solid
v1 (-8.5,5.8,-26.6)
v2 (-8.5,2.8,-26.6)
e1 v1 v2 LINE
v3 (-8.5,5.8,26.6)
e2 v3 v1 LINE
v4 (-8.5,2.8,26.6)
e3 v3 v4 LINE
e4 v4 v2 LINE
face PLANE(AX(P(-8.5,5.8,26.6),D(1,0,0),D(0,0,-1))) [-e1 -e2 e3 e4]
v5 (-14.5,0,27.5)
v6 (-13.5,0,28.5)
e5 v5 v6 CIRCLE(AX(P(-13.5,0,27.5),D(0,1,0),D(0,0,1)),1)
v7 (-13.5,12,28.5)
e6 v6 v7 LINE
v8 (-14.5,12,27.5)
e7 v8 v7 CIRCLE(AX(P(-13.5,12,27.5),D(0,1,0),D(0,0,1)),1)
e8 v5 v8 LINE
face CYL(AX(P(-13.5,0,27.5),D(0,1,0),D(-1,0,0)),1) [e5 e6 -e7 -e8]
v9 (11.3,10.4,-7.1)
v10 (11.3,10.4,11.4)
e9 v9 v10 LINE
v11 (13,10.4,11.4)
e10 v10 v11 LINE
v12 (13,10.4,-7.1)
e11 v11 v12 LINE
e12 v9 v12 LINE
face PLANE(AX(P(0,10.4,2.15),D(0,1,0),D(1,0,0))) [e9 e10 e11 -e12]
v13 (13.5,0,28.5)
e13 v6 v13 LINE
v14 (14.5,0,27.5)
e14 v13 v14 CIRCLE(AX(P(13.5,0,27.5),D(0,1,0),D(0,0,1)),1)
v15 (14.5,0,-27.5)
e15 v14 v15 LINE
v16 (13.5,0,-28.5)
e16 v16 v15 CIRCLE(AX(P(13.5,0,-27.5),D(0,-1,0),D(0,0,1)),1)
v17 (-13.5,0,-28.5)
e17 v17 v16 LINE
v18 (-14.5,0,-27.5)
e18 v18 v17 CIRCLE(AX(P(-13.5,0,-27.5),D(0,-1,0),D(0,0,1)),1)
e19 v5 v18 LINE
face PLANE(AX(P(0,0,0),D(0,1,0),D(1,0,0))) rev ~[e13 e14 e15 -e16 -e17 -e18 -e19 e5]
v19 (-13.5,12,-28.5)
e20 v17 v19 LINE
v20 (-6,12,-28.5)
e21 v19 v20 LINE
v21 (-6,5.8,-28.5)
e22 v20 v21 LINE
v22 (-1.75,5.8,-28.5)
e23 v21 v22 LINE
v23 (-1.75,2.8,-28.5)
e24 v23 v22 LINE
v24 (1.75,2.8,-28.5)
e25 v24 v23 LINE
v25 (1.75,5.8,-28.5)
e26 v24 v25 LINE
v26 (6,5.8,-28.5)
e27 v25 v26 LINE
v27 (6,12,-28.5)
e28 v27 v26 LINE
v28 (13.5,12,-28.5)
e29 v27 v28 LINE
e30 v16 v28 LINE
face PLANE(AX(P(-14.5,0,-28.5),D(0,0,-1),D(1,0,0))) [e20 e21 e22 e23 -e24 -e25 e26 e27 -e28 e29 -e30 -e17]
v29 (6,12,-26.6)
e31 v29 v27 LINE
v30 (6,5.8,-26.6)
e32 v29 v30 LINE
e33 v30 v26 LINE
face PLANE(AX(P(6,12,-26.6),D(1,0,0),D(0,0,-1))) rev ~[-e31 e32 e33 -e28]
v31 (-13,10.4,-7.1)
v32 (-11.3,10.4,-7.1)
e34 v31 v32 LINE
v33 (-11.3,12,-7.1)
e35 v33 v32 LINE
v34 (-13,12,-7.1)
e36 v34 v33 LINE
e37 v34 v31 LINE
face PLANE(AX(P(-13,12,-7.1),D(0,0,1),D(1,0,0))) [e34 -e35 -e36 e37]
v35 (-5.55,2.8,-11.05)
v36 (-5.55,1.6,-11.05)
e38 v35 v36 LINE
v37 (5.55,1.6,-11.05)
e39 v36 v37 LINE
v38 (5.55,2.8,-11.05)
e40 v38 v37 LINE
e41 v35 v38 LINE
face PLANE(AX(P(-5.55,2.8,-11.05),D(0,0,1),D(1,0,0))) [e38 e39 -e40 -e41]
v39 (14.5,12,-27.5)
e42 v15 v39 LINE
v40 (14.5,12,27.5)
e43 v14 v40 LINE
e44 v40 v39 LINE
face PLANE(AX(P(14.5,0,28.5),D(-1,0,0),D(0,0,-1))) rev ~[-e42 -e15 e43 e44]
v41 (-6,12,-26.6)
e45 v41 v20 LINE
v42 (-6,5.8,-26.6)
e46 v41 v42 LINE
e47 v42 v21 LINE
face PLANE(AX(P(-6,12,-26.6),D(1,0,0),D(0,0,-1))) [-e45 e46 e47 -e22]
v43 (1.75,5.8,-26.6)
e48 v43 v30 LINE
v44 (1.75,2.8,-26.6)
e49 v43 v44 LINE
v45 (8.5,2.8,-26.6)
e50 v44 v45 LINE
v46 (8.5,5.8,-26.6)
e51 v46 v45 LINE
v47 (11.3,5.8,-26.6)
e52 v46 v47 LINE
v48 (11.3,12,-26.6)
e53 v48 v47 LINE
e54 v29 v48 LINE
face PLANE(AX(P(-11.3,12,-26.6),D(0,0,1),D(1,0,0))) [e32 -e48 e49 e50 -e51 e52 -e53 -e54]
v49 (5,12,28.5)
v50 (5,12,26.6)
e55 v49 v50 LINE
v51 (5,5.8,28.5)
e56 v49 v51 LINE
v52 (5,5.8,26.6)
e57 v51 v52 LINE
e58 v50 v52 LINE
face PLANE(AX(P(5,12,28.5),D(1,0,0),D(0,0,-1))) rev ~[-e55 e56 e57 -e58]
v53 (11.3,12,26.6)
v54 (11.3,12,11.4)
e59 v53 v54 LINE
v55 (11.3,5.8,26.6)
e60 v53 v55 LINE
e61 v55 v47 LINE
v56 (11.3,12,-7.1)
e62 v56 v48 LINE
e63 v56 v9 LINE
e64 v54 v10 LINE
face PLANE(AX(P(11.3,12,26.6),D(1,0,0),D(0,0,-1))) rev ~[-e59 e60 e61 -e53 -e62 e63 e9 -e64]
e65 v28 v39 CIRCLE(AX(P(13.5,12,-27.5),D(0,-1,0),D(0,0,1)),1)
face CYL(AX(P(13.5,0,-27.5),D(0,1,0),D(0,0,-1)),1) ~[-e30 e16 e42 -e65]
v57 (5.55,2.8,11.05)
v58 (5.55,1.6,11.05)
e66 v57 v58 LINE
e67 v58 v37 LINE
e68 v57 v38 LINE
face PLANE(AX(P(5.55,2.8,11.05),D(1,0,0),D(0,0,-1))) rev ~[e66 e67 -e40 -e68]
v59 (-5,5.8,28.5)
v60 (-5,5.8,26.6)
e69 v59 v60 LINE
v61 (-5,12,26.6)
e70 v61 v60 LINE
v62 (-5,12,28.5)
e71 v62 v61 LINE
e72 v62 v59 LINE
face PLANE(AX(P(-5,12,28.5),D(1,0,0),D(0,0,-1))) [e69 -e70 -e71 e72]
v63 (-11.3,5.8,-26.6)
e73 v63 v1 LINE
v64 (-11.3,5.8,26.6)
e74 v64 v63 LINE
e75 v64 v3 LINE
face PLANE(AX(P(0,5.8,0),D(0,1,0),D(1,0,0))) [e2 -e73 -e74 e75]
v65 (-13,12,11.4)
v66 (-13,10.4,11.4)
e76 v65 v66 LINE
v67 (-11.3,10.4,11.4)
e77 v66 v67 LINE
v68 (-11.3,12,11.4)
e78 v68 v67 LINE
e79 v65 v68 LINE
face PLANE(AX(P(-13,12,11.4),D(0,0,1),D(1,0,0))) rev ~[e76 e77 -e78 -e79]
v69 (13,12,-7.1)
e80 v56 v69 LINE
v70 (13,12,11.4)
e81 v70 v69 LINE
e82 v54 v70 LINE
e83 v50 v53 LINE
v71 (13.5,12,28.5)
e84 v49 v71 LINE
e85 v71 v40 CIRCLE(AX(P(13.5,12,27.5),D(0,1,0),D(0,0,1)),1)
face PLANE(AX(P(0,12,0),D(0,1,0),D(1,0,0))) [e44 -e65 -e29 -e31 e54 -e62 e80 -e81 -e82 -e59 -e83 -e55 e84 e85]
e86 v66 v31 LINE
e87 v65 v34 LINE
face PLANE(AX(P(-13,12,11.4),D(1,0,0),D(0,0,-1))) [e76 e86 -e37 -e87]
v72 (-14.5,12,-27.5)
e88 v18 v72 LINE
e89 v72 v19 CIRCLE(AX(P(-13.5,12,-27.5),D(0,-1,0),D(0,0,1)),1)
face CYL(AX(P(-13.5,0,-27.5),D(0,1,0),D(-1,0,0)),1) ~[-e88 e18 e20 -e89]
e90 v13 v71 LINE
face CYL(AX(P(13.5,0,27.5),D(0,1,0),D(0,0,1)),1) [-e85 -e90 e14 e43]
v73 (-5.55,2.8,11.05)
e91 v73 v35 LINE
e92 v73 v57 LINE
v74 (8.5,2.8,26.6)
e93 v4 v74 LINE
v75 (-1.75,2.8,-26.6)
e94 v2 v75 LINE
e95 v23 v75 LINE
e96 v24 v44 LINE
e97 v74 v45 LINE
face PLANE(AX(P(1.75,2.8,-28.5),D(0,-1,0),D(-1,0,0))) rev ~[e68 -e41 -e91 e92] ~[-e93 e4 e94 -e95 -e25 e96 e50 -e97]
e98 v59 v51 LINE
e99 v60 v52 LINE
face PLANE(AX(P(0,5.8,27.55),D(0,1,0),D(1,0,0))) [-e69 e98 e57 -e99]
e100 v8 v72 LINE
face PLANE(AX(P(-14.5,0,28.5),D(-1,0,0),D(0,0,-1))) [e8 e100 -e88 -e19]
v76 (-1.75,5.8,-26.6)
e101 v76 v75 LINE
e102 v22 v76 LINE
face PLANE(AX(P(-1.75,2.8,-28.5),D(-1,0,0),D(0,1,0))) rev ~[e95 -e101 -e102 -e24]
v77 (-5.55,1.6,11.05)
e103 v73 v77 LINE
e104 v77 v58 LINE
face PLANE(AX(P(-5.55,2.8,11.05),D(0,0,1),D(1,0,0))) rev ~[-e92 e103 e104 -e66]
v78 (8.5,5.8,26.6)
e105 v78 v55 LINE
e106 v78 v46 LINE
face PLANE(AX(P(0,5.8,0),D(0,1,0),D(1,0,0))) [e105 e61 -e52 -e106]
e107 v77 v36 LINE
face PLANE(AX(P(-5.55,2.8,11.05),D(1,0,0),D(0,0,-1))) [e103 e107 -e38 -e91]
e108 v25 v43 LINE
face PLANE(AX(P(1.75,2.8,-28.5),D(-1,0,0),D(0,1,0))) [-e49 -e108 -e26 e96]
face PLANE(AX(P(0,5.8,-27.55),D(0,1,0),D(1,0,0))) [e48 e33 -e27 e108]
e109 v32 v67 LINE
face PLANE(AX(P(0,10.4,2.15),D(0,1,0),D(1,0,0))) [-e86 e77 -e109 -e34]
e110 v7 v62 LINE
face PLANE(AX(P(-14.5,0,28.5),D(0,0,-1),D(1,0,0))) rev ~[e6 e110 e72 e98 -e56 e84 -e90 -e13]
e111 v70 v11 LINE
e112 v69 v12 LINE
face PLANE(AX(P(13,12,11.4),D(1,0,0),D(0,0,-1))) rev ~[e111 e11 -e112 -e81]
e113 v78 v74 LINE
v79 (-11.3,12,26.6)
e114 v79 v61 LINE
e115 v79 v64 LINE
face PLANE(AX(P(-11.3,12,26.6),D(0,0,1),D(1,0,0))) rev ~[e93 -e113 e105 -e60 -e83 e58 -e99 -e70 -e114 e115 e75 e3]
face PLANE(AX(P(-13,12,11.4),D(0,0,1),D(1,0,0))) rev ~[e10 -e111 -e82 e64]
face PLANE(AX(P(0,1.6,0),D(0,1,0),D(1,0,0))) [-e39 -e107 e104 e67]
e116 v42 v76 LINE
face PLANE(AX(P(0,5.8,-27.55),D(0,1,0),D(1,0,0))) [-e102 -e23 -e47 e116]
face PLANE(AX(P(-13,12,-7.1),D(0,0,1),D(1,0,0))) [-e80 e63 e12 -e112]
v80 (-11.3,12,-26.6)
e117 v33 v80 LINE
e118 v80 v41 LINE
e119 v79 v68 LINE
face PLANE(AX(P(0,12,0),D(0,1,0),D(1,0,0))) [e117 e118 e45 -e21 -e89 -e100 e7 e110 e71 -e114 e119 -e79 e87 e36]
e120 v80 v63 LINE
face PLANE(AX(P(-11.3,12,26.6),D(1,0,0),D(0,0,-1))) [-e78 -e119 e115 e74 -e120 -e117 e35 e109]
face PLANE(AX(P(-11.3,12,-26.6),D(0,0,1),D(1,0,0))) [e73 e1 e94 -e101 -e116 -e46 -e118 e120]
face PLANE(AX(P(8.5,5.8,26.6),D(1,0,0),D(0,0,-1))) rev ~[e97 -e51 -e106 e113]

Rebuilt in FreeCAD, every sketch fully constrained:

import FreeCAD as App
import Part
import Sketcher
from FreeCAD import Vector
Q = App.Units.Quantity


def edges_at(feature, points):
    """Names of the edges that pass closest to the given points."""
    edges = feature.Shape.Edges
    near = lambda p: min(range(len(edges)), key=lambda i: edges[i].distToShape(Part.Vertex(*p))[0])
    return sorted({f"Edge{near(p) + 1}" for p in points})

doc = App.newDocument("Part")
params = doc.addObject("Spreadsheet::Sheet", "Params")
for row, (alias, value) in enumerate([
    ("sketch1_width", "29 mm"),
    ("sketch1_height", "57 mm"),
    ("pad1_length", "12 mm"),
    ("sketch2_width", "22.6 mm"),
    ("sketch2_height", "53.2 mm"),
    ("pocket1_length", "6.2 mm"),
    ("sketch3_width", "17 mm"),
    ("sketch3_height", "53.2 mm"),
    ("pocket2_length", "3 mm"),
    ("sketch4_width", "11.1 mm"),
    ("sketch4_height", "22.1 mm"),
    ("pocket3_length", "1.2 mm"),
    ("sketch5_width", "26 mm"),
    ("sketch5_height", "18.5 mm"),
    ("pocket4_length", "1.6 mm"),
    ("sketch6_width", "12 mm"),
    ("sketch6_width2", "10 mm"),
    ("sketch6_height", "1.9 mm"),
    ("pocket5_length", "6.2 mm"),
    ("fillet_radius", "1 mm"),
    ("sketch7_height", "3 mm"),
    ("sketch7_width", "3.5 mm"),
    ("pocket6_length", "10 mm"),
], start=1):
    params.set(f"A{row}", alias)
    params.set(f"B{row}", "=" + value)
    params.setAlias(f"B{row}", alias)

body = doc.addObject("PartDesign::Body", "Body")

# Sketch on XZ plane
sketch1 = body.newObject("Sketcher::SketchObject", "Sketch")
sketch1.AttachmentSupport = (doc.getObject("XZ_Plane"), [""])
sketch1.MapMode = "FlatFace"
sketch1.addGeometry([
    Part.LineSegment(Vector(-14.5, -28.5, 0), Vector(-14.5, 28.5, 0)),
    Part.LineSegment(Vector(-14.5, 28.5, 0), Vector(14.5, 28.5, 0)),
    Part.LineSegment(Vector(14.5, 28.5, 0), Vector(14.5, -28.5, 0)),
    Part.LineSegment(Vector(14.5, -28.5, 0), Vector(-14.5, -28.5, 0)),
], False)
sketch1.addConstraint([
    Sketcher.Constraint("Coincident", 0, 2, 1, 1),
    Sketcher.Constraint("Coincident", 1, 2, 2, 1),
    Sketcher.Constraint("Coincident", 2, 2, 3, 1),
    Sketcher.Constraint("Coincident", 3, 2, 0, 1),
    Sketcher.Constraint("Vertical", 0),
    Sketcher.Constraint("Horizontal", 1),
    Sketcher.Constraint("Vertical", 2),
    Sketcher.Constraint("Horizontal", 3),
    Sketcher.Constraint("Symmetric", 0, 2, 2, 2, -1, 1),
    Sketcher.Constraint("DistanceX", 1, 1, 1, 2, Q("29 mm")),
    Sketcher.Constraint("DistanceY", 0, 1, 0, 2, Q("57 mm")),
])
sketch1.setExpression("Constraints[9]", "Params.sketch1_width")
sketch1.setExpression("Constraints[10]", "Params.sketch1_height")
pad1 = body.newObject("PartDesign::Pad", "Pad")
pad1.Profile = sketch1
pad1.setExpression("Length", "Params.pad1_length")
pad1.Reversed = True

# Sketch on XZ plane
sketch2 = body.newObject("Sketcher::SketchObject", "Sketch001")
sketch2.AttachmentSupport = (doc.getObject("XZ_Plane"), [""])
sketch2.MapMode = "FlatFace"
sketch2.AttachmentOffset = App.Placement(Vector(0, 0, -12), App.Rotation())
sketch2.addGeometry([
    Part.LineSegment(Vector(-11.3, -26.6, 0), Vector(-11.3, 26.6, 0)),
    Part.LineSegment(Vector(-11.3, 26.6, 0), Vector(11.3, 26.6, 0)),
    Part.LineSegment(Vector(11.3, 26.6, 0), Vector(11.3, -26.6, 0)),
    Part.LineSegment(Vector(11.3, -26.6, 0), Vector(-11.3, -26.6, 0)),
], False)
sketch2.addConstraint([
    Sketcher.Constraint("Coincident", 0, 2, 1, 1),
    Sketcher.Constraint("Coincident", 1, 2, 2, 1),
    Sketcher.Constraint("Coincident", 2, 2, 3, 1),
    Sketcher.Constraint("Coincident", 3, 2, 0, 1),
    Sketcher.Constraint("Vertical", 0),
    Sketcher.Constraint("Horizontal", 1),
    Sketcher.Constraint("Vertical", 2),
    Sketcher.Constraint("Horizontal", 3),
    Sketcher.Constraint("Symmetric", 0, 2, 2, 2, -1, 1),
    Sketcher.Constraint("DistanceX", 1, 1, 1, 2, Q("22.6 mm")),
    Sketcher.Constraint("DistanceY", 0, 1, 0, 2, Q("53.2 mm")),
])
sketch2.setExpression("Constraints[9]", "Params.sketch2_width")
sketch2.setExpression("Constraints[10]", "Params.sketch2_height")
pocket1 = body.newObject("PartDesign::Pocket", "Pocket")
pocket1.Profile = sketch2
pocket1.setExpression("Length", "Params.pocket1_length")
pocket1.Reversed = True

# Sketch on XZ plane
sketch3 = body.newObject("Sketcher::SketchObject", "Sketch002")
sketch3.AttachmentSupport = (doc.getObject("XZ_Plane"), [""])
sketch3.MapMode = "FlatFace"
sketch3.AttachmentOffset = App.Placement(Vector(0, 0, -5.8), App.Rotation())
sketch3.addGeometry([
    Part.LineSegment(Vector(-8.5, -26.6, 0), Vector(-8.5, 26.6, 0)),
    Part.LineSegment(Vector(-8.5, 26.6, 0), Vector(8.5, 26.6, 0)),
    Part.LineSegment(Vector(8.5, 26.6, 0), Vector(8.5, -26.6, 0)),
    Part.LineSegment(Vector(8.5, -26.6, 0), Vector(-8.5, -26.6, 0)),
], False)
sketch3.addConstraint([
    Sketcher.Constraint("Coincident", 0, 2, 1, 1),
    Sketcher.Constraint("Coincident", 1, 2, 2, 1),
    Sketcher.Constraint("Coincident", 2, 2, 3, 1),
    Sketcher.Constraint("Coincident", 3, 2, 0, 1),
    Sketcher.Constraint("Vertical", 0),
    Sketcher.Constraint("Horizontal", 1),
    Sketcher.Constraint("Vertical", 2),
    Sketcher.Constraint("Horizontal", 3),
    Sketcher.Constraint("Symmetric", 0, 2, 2, 2, -1, 1),
    Sketcher.Constraint("DistanceX", 1, 1, 1, 2, Q("17 mm")),
    Sketcher.Constraint("DistanceY", 0, 1, 0, 2, Q("53.2 mm")),
])
sketch3.setExpression("Constraints[9]", "Params.sketch3_width")
sketch3.setExpression("Constraints[10]", "Params.sketch3_height")
pocket2 = body.newObject("PartDesign::Pocket", "Pocket001")
pocket2.Profile = sketch3
pocket2.setExpression("Length", "Params.pocket2_length")
pocket2.Reversed = True

# Sketch on XZ plane
sketch4 = body.newObject("Sketcher::SketchObject", "Sketch003")
sketch4.AttachmentSupport = (doc.getObject("XZ_Plane"), [""])
sketch4.MapMode = "FlatFace"
sketch4.AttachmentOffset = App.Placement(Vector(0, 0, -2.8), App.Rotation())
sketch4.addGeometry([
    Part.LineSegment(Vector(-5.55, -11.05, 0), Vector(-5.55, 11.05, 0)),
    Part.LineSegment(Vector(-5.55, 11.05, 0), Vector(5.55, 11.05, 0)),
    Part.LineSegment(Vector(5.55, 11.05, 0), Vector(5.55, -11.05, 0)),
    Part.LineSegment(Vector(5.55, -11.05, 0), Vector(-5.55, -11.05, 0)),
], False)
sketch4.addConstraint([
    Sketcher.Constraint("Coincident", 0, 2, 1, 1),
    Sketcher.Constraint("Coincident", 1, 2, 2, 1),
    Sketcher.Constraint("Coincident", 2, 2, 3, 1),
    Sketcher.Constraint("Coincident", 3, 2, 0, 1),
    Sketcher.Constraint("Vertical", 0),
    Sketcher.Constraint("Horizontal", 1),
    Sketcher.Constraint("Vertical", 2),
    Sketcher.Constraint("Horizontal", 3),
    Sketcher.Constraint("Symmetric", 0, 2, 2, 2, -1, 1),
    Sketcher.Constraint("DistanceX", 1, 1, 1, 2, Q("11.1 mm")),
    Sketcher.Constraint("DistanceY", 0, 1, 0, 2, Q("22.1 mm")),
])
sketch4.setExpression("Constraints[9]", "Params.sketch4_width")
sketch4.setExpression("Constraints[10]", "Params.sketch4_height")
pocket3 = body.newObject("PartDesign::Pocket", "Pocket002")
pocket3.Profile = sketch4
pocket3.setExpression("Length", "Params.pocket3_length")
pocket3.Reversed = True

# Sketch on XZ plane
sketch5 = body.newObject("Sketcher::SketchObject", "Sketch004")
sketch5.AttachmentSupport = (doc.getObject("XZ_Plane"), [""])
sketch5.MapMode = "FlatFace"
sketch5.AttachmentOffset = App.Placement(Vector(0, 0, -12), App.Rotation())
sketch5.addGeometry([
    Part.LineSegment(Vector(-13, -7.1, 0), Vector(-13, 11.4, 0)),
    Part.LineSegment(Vector(-13, 11.4, 0), Vector(13, 11.4, 0)),
    Part.LineSegment(Vector(13, 11.4, 0), Vector(13, -7.1, 0)),
    Part.LineSegment(Vector(13, -7.1, 0), Vector(-13, -7.1, 0)),
], False)
sketch5.addConstraint([
    Sketcher.Constraint("Coincident", 0, 2, 1, 1),
    Sketcher.Constraint("Coincident", 1, 2, 2, 1),
    Sketcher.Constraint("Coincident", 2, 2, 3, 1),
    Sketcher.Constraint("Coincident", 3, 2, 0, 1),
    Sketcher.Constraint("Vertical", 0),
    Sketcher.Constraint("Horizontal", 1),
    Sketcher.Constraint("Vertical", 2),
    Sketcher.Constraint("Horizontal", 3),
    Sketcher.Constraint("DistanceX", 1, 1, 1, 2, Q("26 mm")),
    Sketcher.Constraint("DistanceY", 0, 1, 0, 2, Q("18.5 mm")),
    Sketcher.Constraint("DistanceX", 0, 2, -1, 1, Q("13 mm")),
    Sketcher.Constraint("DistanceY", -1, 1, 0, 2, Q("11.4 mm")),
])
sketch5.setExpression("Constraints[8]", "Params.sketch5_width")
sketch5.setExpression("Constraints[9]", "Params.sketch5_height")
pocket4 = body.newObject("PartDesign::Pocket", "Pocket003")
pocket4.Profile = sketch5
pocket4.setExpression("Length", "Params.pocket4_length")
pocket4.Reversed = True

# Sketch on XZ plane
sketch6 = body.newObject("Sketcher::SketchObject", "Sketch005")
sketch6.AttachmentSupport = (doc.getObject("XZ_Plane"), [""])
sketch6.MapMode = "FlatFace"
sketch6.AttachmentOffset = App.Placement(Vector(0, 0, -12), App.Rotation())
sketch6.addGeometry([
    Part.LineSegment(Vector(-6, -28.5, 0), Vector(-6, -26.6, 0)),  # 0
    Part.LineSegment(Vector(-6, -26.6, 0), Vector(6, -26.6, 0)),  # 1
    Part.LineSegment(Vector(6, -26.6, 0), Vector(6, -28.5, 0)),  # 2
    Part.LineSegment(Vector(6, -28.5, 0), Vector(-6, -28.5, 0)),  # 3
    Part.LineSegment(Vector(-5, 26.6, 0), Vector(-5, 28.5, 0)),  # 4
    Part.LineSegment(Vector(-5, 28.5, 0), Vector(5, 28.5, 0)),  # 5
    Part.LineSegment(Vector(5, 28.5, 0), Vector(5, 26.6, 0)),  # 6
    Part.LineSegment(Vector(5, 26.6, 0), Vector(-5, 26.6, 0)),  # 7
], False)
sketch6.addConstraint([
    Sketcher.Constraint("Coincident", 0, 2, 1, 1),
    Sketcher.Constraint("Coincident", 1, 2, 2, 1),
    Sketcher.Constraint("Coincident", 2, 2, 3, 1),
    Sketcher.Constraint("Coincident", 3, 2, 0, 1),
    Sketcher.Constraint("Coincident", 4, 2, 5, 1),
    Sketcher.Constraint("Coincident", 5, 2, 6, 1),
    Sketcher.Constraint("Coincident", 6, 2, 7, 1),
    Sketcher.Constraint("Coincident", 7, 2, 4, 1),
    Sketcher.Constraint("Vertical", 0),
    Sketcher.Constraint("Horizontal", 1),
    Sketcher.Constraint("Vertical", 2),
    Sketcher.Constraint("Horizontal", 3),
    Sketcher.Constraint("Vertical", 4),
    Sketcher.Constraint("Horizontal", 5),
    Sketcher.Constraint("Vertical", 6),
    Sketcher.Constraint("Horizontal", 7),
    Sketcher.Constraint("Equal", 2, 4),
    Sketcher.Constraint("DistanceX", 1, 1, 1, 2, Q("12 mm")),
    Sketcher.Constraint("DistanceX", 5, 1, 5, 2, Q("10 mm")),
    Sketcher.Constraint("DistanceY", 0, 1, 0, 2, Q("1.9 mm")),
    Sketcher.Constraint("DistanceX", 0, 2, -1, 1, Q("6 mm")),
    Sketcher.Constraint("DistanceX", 4, 2, -1, 1, Q("5 mm")),
    Sketcher.Constraint("DistanceY", 3, 2, 4, 2, Q("57 mm")),
    Sketcher.Constraint("DistanceY", 0, 2, -1, 1, Q("26.6 mm")),
])
sketch6.setExpression("Constraints[17]", "Params.sketch6_width")
sketch6.setExpression("Constraints[18]", "Params.sketch6_width2")
sketch6.setExpression("Constraints[19]", "Params.sketch6_height")
pocket5 = body.newObject("PartDesign::Pocket", "Pocket004")
pocket5.Profile = sketch6
pocket5.setExpression("Length", "Params.pocket5_length")
pocket5.Reversed = True
doc.recompute()

fillet = body.newObject("PartDesign::Fillet", "Fillet")
fillet.Base = (pocket5, edges_at(pocket5, [
    (14.5, 6, 28.5),
    (-14.5, 6, 28.5),
    (-14.5, 6, -28.5),
    (14.5, 6, -28.5),
]))
fillet.setExpression("Radius", "Params.fillet_radius")

# Sketch on XY plane
sketch7 = body.newObject("Sketcher::SketchObject", "Sketch006")
sketch7.AttachmentSupport = (doc.getObject("XY_Plane"), [""])
sketch7.MapMode = "FlatFace"
sketch7.AttachmentOffset = App.Placement(Vector(0, 0, -28.5), App.Rotation())
sketch7.addGeometry([
    Part.LineSegment(Vector(1.75, 5.8, 0), Vector(1.75, 2.8, 0)),
    Part.LineSegment(Vector(1.75, 2.8, 0), Vector(-1.75, 2.8, 0)),
    Part.LineSegment(Vector(-1.75, 2.8, 0), Vector(-1.75, 5.8, 0)),
    Part.LineSegment(Vector(-1.75, 5.8, 0), Vector(1.75, 5.8, 0)),
], False)
sketch7.addConstraint([
    Sketcher.Constraint("Coincident", 0, 2, 1, 1),
    Sketcher.Constraint("Coincident", 1, 2, 2, 1),
    Sketcher.Constraint("Coincident", 2, 2, 3, 1),
    Sketcher.Constraint("Coincident", 3, 2, 0, 1),
    Sketcher.Constraint("Vertical", 0),
    Sketcher.Constraint("Horizontal", 1),
    Sketcher.Constraint("Vertical", 2),
    Sketcher.Constraint("Horizontal", 3),
    Sketcher.Constraint("DistanceY", 0, 2, 0, 1, Q("3 mm")),
    Sketcher.Constraint("DistanceX", 1, 2, 1, 1, Q("3.5 mm")),
    Sketcher.Constraint("DistanceY", -1, 1, 0, 2, Q("2.8 mm")),
    Sketcher.Constraint("DistanceX", -1, 1, 0, 2, Q("1.75 mm")),
])
sketch7.setExpression("Constraints[8]", "Params.sketch7_height")
sketch7.setExpression("Constraints[9]", "Params.sketch7_width")
pocket6 = body.newObject("PartDesign::Pocket", "Pocket005")
pocket6.Profile = sketch7
pocket6.setExpression("Length", "Params.pocket6_length")
pocket6.Reversed = True

doc.recompute()
